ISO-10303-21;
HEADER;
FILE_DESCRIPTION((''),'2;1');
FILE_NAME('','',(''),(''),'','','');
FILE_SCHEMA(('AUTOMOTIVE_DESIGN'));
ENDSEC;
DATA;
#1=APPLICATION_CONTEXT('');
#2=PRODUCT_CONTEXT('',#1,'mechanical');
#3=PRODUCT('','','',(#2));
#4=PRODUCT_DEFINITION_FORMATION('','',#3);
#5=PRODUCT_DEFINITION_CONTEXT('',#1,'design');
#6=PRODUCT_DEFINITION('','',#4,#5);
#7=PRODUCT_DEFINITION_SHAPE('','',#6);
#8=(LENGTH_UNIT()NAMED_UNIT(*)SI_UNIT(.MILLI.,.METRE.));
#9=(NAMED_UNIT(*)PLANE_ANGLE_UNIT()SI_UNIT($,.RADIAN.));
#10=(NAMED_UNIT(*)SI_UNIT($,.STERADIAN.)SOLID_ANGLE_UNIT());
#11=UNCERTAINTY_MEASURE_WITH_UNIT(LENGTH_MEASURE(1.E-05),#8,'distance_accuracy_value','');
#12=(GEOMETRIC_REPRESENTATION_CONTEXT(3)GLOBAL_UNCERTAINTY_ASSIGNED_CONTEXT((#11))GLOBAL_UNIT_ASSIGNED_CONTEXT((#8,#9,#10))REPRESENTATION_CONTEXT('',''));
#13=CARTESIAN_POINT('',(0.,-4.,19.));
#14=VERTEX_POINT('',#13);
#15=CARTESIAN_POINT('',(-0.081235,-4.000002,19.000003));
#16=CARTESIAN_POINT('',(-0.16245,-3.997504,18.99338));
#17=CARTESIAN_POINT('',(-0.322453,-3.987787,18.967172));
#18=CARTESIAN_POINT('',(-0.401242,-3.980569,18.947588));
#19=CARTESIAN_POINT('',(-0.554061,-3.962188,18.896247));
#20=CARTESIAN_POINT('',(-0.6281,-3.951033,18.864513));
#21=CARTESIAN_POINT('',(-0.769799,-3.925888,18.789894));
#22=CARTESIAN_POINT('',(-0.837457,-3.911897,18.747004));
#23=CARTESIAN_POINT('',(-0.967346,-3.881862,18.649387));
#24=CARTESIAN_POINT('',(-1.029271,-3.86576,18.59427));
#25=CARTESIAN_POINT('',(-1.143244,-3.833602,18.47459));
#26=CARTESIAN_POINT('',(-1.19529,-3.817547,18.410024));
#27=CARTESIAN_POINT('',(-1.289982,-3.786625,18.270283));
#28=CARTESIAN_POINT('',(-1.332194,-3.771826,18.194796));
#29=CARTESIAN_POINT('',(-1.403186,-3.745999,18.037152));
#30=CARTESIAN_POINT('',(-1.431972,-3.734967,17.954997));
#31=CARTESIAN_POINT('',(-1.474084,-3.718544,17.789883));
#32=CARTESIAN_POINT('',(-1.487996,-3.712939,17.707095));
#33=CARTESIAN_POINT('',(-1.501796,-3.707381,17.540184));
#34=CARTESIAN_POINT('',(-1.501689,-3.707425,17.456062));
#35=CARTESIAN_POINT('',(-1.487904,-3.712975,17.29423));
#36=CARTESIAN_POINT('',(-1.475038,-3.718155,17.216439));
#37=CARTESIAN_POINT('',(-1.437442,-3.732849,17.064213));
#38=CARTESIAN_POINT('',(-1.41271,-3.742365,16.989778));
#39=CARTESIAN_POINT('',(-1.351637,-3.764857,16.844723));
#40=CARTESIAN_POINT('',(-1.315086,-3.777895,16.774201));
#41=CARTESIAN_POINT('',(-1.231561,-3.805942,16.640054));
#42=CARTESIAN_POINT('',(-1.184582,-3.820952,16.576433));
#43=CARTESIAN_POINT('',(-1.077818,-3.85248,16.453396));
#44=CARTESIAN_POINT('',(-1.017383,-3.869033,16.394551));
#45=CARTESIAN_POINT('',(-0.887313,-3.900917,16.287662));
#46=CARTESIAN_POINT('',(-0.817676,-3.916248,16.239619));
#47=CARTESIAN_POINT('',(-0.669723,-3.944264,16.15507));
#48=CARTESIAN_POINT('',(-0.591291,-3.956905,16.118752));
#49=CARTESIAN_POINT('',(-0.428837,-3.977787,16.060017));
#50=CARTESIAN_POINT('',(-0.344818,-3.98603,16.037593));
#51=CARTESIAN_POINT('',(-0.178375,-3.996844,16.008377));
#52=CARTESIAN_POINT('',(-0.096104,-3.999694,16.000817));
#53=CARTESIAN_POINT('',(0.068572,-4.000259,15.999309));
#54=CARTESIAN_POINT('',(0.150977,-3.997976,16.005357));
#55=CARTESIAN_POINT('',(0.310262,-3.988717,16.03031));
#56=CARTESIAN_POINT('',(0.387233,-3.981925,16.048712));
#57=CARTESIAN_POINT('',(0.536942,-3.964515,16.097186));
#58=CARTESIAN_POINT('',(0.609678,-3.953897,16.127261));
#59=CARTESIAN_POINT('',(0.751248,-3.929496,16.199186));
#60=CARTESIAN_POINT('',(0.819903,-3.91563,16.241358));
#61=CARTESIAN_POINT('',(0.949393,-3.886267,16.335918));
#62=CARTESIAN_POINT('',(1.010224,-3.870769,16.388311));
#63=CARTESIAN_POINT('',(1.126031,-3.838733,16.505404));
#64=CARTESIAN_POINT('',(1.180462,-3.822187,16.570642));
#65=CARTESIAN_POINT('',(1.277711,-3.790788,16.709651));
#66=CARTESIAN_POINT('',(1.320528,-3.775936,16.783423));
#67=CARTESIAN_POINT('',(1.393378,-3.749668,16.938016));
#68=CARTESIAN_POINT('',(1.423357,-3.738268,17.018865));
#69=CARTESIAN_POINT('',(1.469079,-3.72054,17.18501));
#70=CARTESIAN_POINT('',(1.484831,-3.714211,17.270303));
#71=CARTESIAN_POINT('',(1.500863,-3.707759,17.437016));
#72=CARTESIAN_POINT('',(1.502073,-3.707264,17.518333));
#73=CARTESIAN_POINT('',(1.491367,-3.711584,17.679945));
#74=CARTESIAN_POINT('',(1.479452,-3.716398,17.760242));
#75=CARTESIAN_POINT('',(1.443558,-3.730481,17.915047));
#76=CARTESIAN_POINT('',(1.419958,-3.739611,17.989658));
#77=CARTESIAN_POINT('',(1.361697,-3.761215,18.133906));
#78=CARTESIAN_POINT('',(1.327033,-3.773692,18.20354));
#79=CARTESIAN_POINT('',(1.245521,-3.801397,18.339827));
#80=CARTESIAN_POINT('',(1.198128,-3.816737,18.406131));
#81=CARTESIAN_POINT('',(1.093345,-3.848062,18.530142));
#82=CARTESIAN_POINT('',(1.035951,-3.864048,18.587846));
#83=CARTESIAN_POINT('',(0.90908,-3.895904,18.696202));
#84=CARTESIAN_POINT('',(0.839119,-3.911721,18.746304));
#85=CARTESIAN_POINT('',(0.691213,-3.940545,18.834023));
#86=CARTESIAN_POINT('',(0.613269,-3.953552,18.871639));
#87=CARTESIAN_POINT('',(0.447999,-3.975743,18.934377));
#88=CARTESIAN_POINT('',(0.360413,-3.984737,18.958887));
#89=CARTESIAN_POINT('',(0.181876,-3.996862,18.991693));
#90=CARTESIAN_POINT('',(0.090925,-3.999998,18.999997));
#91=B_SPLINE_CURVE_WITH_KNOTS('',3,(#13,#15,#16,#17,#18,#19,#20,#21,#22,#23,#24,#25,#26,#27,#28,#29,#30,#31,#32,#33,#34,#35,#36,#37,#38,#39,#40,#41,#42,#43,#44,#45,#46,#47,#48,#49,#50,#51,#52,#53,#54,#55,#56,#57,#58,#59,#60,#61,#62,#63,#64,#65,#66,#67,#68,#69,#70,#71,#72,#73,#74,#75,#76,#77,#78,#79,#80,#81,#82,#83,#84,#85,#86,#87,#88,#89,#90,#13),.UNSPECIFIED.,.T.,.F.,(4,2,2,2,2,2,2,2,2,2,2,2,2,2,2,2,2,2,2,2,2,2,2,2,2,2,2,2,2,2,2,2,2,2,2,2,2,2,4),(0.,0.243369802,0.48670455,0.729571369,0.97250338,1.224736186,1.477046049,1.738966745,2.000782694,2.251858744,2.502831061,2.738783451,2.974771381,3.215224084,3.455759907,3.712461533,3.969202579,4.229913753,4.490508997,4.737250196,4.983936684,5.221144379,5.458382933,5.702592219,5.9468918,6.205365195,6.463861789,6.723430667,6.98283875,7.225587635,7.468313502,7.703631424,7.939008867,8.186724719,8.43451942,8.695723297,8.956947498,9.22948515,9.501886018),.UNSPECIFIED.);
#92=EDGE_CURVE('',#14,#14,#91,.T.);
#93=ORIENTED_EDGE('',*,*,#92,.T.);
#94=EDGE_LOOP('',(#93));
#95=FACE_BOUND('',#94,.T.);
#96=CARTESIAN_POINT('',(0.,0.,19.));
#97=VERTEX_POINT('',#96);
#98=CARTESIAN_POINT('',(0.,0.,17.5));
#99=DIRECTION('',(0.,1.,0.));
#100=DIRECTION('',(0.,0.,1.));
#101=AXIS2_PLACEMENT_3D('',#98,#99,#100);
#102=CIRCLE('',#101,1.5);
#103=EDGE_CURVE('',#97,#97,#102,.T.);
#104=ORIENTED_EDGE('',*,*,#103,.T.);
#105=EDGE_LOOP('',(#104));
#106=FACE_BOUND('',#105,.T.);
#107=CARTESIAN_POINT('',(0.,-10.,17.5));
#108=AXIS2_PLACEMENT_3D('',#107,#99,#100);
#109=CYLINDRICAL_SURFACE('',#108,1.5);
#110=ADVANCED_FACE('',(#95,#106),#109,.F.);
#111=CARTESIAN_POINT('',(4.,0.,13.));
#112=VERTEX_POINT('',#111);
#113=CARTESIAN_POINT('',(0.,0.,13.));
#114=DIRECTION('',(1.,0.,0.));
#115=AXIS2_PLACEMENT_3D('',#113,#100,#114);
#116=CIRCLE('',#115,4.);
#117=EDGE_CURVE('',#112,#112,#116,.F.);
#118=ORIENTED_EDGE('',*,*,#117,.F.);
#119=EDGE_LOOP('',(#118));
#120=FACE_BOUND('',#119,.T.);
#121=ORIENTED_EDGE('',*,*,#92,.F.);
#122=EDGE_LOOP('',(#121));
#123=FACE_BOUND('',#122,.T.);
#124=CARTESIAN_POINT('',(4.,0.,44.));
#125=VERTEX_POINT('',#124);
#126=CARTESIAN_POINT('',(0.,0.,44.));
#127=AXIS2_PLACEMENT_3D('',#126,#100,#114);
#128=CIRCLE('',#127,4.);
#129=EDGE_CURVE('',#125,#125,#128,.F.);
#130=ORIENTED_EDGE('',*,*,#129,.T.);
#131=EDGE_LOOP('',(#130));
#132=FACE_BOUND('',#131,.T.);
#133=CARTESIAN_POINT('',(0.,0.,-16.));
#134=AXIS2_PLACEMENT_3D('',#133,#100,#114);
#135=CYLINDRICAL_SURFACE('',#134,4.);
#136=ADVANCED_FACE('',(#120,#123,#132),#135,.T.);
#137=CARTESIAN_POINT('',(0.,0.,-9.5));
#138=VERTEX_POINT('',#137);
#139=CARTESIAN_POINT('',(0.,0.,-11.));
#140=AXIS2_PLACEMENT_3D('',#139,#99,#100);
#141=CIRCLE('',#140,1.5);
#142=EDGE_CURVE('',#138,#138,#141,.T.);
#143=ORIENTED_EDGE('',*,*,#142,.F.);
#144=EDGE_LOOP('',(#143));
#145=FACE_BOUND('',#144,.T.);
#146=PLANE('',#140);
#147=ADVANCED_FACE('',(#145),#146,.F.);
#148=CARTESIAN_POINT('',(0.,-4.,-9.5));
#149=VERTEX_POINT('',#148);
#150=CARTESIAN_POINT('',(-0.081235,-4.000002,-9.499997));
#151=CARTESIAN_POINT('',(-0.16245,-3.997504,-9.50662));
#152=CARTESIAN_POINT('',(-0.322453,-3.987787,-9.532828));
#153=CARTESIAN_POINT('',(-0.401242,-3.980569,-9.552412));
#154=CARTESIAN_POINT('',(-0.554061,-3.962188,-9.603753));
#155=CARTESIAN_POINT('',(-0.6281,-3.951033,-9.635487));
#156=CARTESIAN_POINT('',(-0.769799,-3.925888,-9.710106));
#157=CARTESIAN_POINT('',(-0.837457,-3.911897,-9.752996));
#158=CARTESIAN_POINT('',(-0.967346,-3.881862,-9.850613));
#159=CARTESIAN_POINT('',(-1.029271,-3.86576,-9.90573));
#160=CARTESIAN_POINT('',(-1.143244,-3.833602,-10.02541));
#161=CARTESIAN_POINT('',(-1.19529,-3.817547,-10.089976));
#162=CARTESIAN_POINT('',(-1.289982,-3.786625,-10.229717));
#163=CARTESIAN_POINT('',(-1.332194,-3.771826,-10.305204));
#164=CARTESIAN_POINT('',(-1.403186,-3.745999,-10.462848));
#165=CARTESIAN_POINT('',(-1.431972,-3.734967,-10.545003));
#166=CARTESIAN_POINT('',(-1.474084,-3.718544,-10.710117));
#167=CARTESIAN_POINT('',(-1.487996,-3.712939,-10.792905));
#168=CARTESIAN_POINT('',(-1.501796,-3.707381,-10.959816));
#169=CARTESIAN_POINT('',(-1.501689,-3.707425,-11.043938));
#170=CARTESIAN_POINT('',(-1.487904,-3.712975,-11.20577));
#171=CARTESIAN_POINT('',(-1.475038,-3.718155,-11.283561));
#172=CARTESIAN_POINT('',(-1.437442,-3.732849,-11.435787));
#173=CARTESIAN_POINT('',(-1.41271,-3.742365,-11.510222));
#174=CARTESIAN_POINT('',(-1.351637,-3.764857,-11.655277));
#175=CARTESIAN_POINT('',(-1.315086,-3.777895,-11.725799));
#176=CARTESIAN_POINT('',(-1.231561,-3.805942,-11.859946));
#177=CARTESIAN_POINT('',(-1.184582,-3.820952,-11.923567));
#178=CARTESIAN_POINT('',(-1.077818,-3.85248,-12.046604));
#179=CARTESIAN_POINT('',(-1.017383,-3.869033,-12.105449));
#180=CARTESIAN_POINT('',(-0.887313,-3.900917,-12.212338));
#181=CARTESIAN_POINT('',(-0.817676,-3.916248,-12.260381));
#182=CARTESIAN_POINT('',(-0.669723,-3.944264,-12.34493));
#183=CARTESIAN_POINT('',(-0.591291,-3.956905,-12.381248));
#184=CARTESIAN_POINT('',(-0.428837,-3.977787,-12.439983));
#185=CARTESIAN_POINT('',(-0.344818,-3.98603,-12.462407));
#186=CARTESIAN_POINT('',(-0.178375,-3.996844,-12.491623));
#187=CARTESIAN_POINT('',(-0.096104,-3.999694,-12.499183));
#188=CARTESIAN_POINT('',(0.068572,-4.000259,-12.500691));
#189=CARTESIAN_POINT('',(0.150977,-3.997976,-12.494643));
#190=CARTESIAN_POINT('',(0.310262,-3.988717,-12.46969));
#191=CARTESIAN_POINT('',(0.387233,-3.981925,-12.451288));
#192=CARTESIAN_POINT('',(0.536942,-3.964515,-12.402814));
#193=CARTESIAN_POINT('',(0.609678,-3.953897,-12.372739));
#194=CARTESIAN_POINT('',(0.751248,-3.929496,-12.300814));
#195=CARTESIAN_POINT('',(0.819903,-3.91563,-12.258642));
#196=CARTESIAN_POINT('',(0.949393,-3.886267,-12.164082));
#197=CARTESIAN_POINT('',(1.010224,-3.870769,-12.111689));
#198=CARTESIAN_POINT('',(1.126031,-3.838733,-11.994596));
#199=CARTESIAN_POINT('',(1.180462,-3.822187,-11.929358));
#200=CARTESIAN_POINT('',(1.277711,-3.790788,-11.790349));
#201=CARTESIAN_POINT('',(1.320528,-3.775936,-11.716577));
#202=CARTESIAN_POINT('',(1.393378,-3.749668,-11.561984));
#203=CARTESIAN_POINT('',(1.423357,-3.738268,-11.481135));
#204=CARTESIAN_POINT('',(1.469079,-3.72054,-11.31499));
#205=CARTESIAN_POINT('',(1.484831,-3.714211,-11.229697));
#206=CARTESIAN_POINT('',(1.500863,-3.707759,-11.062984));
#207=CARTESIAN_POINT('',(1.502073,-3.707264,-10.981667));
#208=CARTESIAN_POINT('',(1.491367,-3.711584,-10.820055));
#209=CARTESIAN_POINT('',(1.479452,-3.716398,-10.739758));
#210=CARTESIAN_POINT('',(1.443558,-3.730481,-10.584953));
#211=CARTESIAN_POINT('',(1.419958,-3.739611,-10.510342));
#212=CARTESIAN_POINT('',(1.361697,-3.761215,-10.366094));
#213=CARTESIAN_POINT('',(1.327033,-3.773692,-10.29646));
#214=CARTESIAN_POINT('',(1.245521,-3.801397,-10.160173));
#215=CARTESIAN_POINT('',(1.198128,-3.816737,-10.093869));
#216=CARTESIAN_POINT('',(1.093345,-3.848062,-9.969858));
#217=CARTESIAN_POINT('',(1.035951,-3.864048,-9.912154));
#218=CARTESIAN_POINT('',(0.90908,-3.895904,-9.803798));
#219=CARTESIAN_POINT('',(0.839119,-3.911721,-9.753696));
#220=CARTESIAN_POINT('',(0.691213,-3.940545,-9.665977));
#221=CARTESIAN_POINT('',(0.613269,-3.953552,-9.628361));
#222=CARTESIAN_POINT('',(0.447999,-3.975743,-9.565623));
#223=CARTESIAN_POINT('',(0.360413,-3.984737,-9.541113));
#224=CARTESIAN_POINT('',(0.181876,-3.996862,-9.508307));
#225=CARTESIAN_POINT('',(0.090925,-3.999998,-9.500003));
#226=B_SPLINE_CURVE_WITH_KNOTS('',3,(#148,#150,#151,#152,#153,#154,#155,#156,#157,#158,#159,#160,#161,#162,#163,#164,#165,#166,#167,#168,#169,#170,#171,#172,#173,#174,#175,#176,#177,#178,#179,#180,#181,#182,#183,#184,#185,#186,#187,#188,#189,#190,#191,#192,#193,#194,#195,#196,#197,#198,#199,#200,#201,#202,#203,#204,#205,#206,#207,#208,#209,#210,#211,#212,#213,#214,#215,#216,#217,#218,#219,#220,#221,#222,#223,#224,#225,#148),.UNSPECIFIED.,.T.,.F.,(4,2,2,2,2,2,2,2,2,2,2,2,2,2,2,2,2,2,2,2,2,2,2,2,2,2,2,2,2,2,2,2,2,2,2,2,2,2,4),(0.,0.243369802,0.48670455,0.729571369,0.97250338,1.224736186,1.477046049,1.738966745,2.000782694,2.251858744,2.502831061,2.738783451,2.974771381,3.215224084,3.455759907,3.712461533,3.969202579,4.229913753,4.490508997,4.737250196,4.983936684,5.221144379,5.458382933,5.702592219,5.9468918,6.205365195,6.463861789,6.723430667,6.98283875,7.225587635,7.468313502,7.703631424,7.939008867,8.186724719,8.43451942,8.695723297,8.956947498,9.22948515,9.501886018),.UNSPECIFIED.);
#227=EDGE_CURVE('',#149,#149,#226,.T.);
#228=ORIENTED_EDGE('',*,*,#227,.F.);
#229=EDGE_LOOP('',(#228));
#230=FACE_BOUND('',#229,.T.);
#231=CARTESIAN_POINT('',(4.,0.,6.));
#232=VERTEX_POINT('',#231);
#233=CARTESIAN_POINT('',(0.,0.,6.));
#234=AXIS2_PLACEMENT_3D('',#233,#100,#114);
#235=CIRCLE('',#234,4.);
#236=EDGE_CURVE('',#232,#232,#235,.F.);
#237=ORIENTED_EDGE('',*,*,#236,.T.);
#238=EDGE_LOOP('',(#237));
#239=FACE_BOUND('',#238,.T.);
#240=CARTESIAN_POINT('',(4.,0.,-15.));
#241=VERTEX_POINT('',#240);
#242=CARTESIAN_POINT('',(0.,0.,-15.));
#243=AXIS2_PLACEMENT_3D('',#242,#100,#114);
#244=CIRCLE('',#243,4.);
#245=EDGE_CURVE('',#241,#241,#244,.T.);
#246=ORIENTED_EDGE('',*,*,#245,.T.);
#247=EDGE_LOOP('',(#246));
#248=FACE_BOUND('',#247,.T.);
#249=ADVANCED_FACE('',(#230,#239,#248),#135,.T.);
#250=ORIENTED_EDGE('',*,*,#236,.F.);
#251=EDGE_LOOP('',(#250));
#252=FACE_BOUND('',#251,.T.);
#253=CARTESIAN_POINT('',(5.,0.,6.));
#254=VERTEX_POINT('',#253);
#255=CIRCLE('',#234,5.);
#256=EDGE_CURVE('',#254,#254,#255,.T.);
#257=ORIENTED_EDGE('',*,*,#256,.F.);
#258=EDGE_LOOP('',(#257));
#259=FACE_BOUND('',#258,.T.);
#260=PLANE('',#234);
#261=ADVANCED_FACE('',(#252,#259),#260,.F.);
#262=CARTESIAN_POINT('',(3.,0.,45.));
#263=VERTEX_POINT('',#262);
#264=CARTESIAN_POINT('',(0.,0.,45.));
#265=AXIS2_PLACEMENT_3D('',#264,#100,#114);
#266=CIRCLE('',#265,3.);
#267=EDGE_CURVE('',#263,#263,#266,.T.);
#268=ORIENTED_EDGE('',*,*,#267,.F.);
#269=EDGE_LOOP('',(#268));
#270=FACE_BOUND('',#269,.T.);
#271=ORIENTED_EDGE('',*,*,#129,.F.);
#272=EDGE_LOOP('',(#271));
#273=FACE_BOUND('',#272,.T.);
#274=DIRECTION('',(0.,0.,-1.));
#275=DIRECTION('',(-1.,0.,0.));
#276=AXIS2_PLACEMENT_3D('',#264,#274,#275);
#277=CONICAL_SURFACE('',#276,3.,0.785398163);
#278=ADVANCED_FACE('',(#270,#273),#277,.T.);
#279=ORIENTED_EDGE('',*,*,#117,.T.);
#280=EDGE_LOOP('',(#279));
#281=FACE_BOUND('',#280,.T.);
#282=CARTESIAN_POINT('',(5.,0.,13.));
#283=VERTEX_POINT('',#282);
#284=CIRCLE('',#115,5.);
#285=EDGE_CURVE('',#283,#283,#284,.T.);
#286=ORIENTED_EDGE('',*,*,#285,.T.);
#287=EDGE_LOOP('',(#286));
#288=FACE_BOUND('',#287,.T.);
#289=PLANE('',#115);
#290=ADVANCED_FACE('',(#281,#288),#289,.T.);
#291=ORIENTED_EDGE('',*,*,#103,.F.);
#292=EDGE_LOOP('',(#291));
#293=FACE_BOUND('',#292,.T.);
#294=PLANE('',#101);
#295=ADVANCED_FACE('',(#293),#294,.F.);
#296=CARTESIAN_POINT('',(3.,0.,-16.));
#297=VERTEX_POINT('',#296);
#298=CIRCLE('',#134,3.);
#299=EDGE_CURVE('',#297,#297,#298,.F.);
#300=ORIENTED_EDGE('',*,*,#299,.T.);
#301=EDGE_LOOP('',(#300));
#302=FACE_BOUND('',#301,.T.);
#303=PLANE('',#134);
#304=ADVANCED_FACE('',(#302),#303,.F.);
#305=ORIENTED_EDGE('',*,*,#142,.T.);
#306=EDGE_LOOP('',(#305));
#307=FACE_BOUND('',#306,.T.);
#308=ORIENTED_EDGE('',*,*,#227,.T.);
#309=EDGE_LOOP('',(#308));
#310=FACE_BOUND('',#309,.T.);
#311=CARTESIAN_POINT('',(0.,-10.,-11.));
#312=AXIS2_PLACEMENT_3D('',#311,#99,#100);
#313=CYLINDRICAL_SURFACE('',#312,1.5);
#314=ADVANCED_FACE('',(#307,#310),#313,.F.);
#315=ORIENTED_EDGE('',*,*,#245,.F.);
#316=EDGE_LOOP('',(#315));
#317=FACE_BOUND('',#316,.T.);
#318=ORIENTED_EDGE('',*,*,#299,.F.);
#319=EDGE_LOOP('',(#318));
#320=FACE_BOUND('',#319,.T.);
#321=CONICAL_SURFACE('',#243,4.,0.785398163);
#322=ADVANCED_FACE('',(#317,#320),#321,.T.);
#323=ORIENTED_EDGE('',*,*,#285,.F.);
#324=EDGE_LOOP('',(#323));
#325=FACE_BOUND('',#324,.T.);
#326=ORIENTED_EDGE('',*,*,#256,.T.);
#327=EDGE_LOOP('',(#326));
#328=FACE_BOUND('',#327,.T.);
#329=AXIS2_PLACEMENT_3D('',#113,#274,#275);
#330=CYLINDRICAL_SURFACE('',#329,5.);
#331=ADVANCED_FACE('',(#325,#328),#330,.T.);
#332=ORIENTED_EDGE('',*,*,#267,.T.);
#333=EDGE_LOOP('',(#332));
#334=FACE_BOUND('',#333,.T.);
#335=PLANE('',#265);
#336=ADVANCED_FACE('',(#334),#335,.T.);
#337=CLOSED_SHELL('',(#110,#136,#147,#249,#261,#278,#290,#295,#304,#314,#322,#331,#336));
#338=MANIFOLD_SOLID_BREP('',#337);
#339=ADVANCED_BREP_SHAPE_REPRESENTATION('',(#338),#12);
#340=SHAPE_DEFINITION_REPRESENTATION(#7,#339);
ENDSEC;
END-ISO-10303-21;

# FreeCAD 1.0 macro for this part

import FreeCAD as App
import Part
import Sketcher
from FreeCAD import Vector


def edges_at(feature, points):
    """Names of the edges that pass closest to the given points."""
    edges = feature.Shape.Edges
    near = lambda p: min(range(len(edges)), key=lambda i: edges[i].distToShape(Part.Vertex(*p))[0])
    return sorted({f"Edge{near(p) + 1}" for p in points})

doc = App.newDocument("Part")
body = doc.addObject("PartDesign::Body", "Body")

sketch1 = body.newObject("Sketcher::SketchObject", "Sketch")
sketch1.AttachmentSupport = (doc.getObject("XY_Plane"), [""])
sketch1.MapMode = "FlatFace"
sketch1.addGeometry(Part.Circle(Vector(0, 0, 0), Vector(0, 0, 1), 4), False)
sketch1.addConstraint(Sketcher.Constraint("Coincident", 0, 3, -1, 1))
sketch1.addConstraint(Sketcher.Constraint("Diameter", 0, 8.0))
pad1 = body.newObject("PartDesign::Pad", "Pad")
pad1.Profile = sketch1
pad1.Type = "TwoLengths"
pad1.Length = 45
pad1.Length2 = 16

sketch2 = body.newObject("Sketcher::SketchObject", "Sketch001")
sketch2.AttachmentSupport = (doc.getObject("XZ_Plane"), [""])
sketch2.MapMode = "FlatFace"
sketch2.addGeometry(Part.Circle(Vector(0, 17.5, 0), Vector(0, 0, 1), 1.5), False)
sketch2.addConstraint(Sketcher.Constraint("PointOnObject", 0, 3, -2))
sketch2.addConstraint(Sketcher.Constraint("Diameter", 0, 3.0))
sketch2.addConstraint(Sketcher.Constraint("DistanceY", -1, 1, 0, 3, 17.5))
pocket1 = body.newObject("PartDesign::Pocket", "Pocket")
pocket1.Profile = sketch2
pocket1.Length = 10
pocket1.Reversed = True
doc.recompute()

chamfer = body.newObject("PartDesign::Chamfer", "Chamfer")
chamfer.Base = (pocket1, edges_at(pocket1, [(-4, 0, 45)]))
chamfer.Size = 1

sketch3 = body.newObject("Sketcher::SketchObject", "Sketch002")
sketch3.AttachmentSupport = (doc.getObject("XY_Plane"), [""])
sketch3.MapMode = "FlatFace"
sketch3.AttachmentOffset = App.Placement(Vector(0, 0, 6), App.Rotation())
sketch3.addGeometry(Part.Circle(Vector(0, 0, 0), Vector(0, 0, 1), 5), False)
sketch3.addConstraint(Sketcher.Constraint("Coincident", 0, 3, -1, 1))
sketch3.addConstraint(Sketcher.Constraint("Diameter", 0, 10.0))
pad2 = body.newObject("PartDesign::Pad", "Pad001")
pad2.Profile = sketch3
pad2.Length = 7

sketch4 = body.newObject("Sketcher::SketchObject", "Sketch003")
sketch4.AttachmentSupport = (doc.getObject("XZ_Plane"), [""])
sketch4.MapMode = "FlatFace"
sketch4.addGeometry(Part.Circle(Vector(0, -11, 0), Vector(0, 0, 1), 1.5), False)
sketch4.addConstraint(Sketcher.Constraint("PointOnObject", 0, 3, -2))
sketch4.addConstraint(Sketcher.Constraint("Diameter", 0, 3.0))
sketch4.addConstraint(Sketcher.Constraint("DistanceY", 0, 3, -1, 1, 11.0))
pocket2 = body.newObject("PartDesign::Pocket", "Pocket001")
pocket2.Profile = sketch4
pocket2.Length = 10
pocket2.Reversed = True
doc.recompute()

chamfer2 = body.newObject("PartDesign::Chamfer", "Chamfer001")
chamfer2.Base = (pocket2, edges_at(pocket2, [(-4, 0, -16)]))
chamfer2.Size = 1

doc.recompute()
